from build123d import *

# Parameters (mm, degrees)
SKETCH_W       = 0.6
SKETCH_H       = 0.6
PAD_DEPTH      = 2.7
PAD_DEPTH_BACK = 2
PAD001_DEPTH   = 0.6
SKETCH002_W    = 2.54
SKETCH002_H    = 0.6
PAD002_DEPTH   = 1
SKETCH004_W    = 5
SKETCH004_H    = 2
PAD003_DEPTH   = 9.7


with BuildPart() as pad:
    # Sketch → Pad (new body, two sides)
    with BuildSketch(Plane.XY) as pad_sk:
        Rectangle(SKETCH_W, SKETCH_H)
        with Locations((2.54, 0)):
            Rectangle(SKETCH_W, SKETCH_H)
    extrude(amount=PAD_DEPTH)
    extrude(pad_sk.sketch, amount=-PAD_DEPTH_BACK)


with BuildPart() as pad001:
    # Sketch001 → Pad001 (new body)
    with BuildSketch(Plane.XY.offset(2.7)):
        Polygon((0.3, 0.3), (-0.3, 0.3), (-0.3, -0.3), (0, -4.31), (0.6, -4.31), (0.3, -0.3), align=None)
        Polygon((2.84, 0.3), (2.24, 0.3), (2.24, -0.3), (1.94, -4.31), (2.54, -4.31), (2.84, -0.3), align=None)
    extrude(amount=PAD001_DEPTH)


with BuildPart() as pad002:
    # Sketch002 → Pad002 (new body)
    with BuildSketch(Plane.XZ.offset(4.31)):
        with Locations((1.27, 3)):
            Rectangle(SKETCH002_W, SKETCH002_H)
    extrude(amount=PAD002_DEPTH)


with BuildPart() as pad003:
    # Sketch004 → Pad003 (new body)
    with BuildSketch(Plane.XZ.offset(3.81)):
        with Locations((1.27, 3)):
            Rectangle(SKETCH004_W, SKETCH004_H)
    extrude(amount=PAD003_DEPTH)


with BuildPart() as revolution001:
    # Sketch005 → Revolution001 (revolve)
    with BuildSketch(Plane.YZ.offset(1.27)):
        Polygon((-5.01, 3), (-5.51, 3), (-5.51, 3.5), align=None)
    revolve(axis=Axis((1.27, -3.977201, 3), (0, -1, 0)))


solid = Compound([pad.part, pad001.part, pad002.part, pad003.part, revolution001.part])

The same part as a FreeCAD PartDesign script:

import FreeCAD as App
import Part
import Sketcher


def add_polygon(sketch, points):
    """Adds a closed chain of lines whose ends are joined by coincident constraints."""
    first, n = sketch.GeometryCount, len(points)
    for a, b in zip(points, points[1:] + points[:1]):
        sketch.addGeometry(Part.LineSegment(App.Vector(*a, 0), App.Vector(*b, 0)), False)
    for i in range(n):
        sketch.addConstraint(Sketcher.Constraint("Coincident", first + i, 2, first + (i + 1) % n, 1))

doc = App.newDocument("Part")
body = doc.addObject("PartDesign::Body", "Body")
body.AllowCompound = True

sketch1 = body.newObject("Sketcher::SketchObject", "Sketch")
sketch1.AttachmentSupport = (doc.getObject("XY_Plane"), [""])
sketch1.MapMode = "FlatFace"
add_polygon(sketch1, [(-0.3, 0.3), (-0.3, -0.3), (0.3, -0.3), (0.3, 0.3)])
add_polygon(sketch1, [(2.24, 0.3), (2.24, -0.3), (2.84, -0.3), (2.84, 0.3)])
sketch1.addConstraint([
    Sketcher.Constraint("Vertical", 0),
    Sketcher.Constraint("Horizontal", 1),
    Sketcher.Constraint("Vertical", 2),
    Sketcher.Constraint("Horizontal", 3),
    Sketcher.Constraint("Vertical", 4),
    Sketcher.Constraint("Horizontal", 5),
    Sketcher.Constraint("Vertical", 6),
    Sketcher.Constraint("Horizontal", 7),
    Sketcher.Constraint("Symmetric", 0, 2, 2, 2, -1, 1),
    Sketcher.Constraint("Horizontal", 1, 2, 4, 2),
    Sketcher.Constraint("Horizontal", 3, 2, 6, 2),
    Sketcher.Constraint("Equal", 3, 5),
    Sketcher.Constraint("Equal", 7, 0),
    Sketcher.Constraint("DistanceX", 1, 1, 1, 2, 0.6),
    Sketcher.Constraint("DistanceX", -1, 1, 4, 2, 2.24),
])
pad1 = body.newObject("PartDesign::Pad", "Pad")
pad1.Profile = sketch1
pad1.Type = "TwoLengths"
pad1.Length = 2.7
pad1.Length2 = 2
body2 = doc.addObject("PartDesign::Body", "Body001")
body2.AllowCompound = True

sketch2 = body2.newObject("Sketcher::SketchObject", "Sketch001")
sketch2.AttachmentSupport = (doc.getObject("XY_Plane001"), [""])
sketch2.MapMode = "FlatFace"
sketch2.AttachmentOffset = App.Placement(App.Vector(0, 0, 2.7), App.Rotation())
add_polygon(sketch2, [(0.3, 0.3), (-0.3, 0.3), (-0.3, -0.3), (0, -4.31), (0.6, -4.31), (0.3, -0.3)])
add_polygon(sketch2, [(2.84, 0.3), (2.24, 0.3), (2.24, -0.3), (1.94, -4.31), (2.54, -4.31), (2.84, -0.3)])
sketch2.addConstraint([
    Sketcher.Constraint("Horizontal", 0),
    Sketcher.Constraint("Vertical", 1),
    Sketcher.Constraint("Horizontal", 3),
    Sketcher.Constraint("Vertical", 5),
    Sketcher.Constraint("Horizontal", 6),
    Sketcher.Constraint("Vertical", 7),
    Sketcher.Constraint("Horizontal", 9),
    Sketcher.Constraint("Vertical", 11),
    Sketcher.Constraint("Symmetric", 0, 2, 4, 2, -1, 1),
    Sketcher.Constraint("PointOnObject", 2, 2, -2),
    Sketcher.Constraint("Parallel", 2, 4),
    Sketcher.Constraint("Parallel", 8, 10),
    Sketcher.Constraint("Horizontal", 1, 2, 4, 2),
    Sketcher.Constraint("Horizontal", 5, 2, 6, 2),
    Sketcher.Constraint("Horizontal", 4, 2, 7, 2),
    Sketcher.Constraint("Horizontal", 3, 2, 8, 2),
    Sketcher.Constraint("Horizontal", 7, 2, 10, 2),
    Sketcher.Constraint("Equal", 3, 6),
    Sketcher.Constraint("Equal", 9, 1),
    Sketcher.Constraint("Equal", 4, 8),
    Sketcher.Constraint("DistanceX", 0, 2, 0, 1, 0.6),
    Sketcher.Constraint("DistanceY", 2, 2, -1, 1, 4.31),
    Sketcher.Constraint("DistanceX", -1, 1, 6, 2, 2.24),
])
pad2 = body2.newObject("PartDesign::Pad", "Pad001")
pad2.Profile = sketch2
pad2.Length = 0.6
body3 = doc.addObject("PartDesign::Body", "Body002")

sketch3 = body3.newObject("Sketcher::SketchObject", "Sketch002")
sketch3.AttachmentSupport = (doc.getObject("XZ_Plane002"), [""])
sketch3.MapMode = "FlatFace"
sketch3.AttachmentOffset = App.Placement(App.Vector(0, 0, 4.31), App.Rotation())
add_polygon(sketch3, [(0, 3.3), (0, 2.7), (2.54, 2.7), (2.54, 3.3)])
sketch3.addConstraint([
    Sketcher.Constraint("Vertical", 0),
    Sketcher.Constraint("Horizontal", 1),
    Sketcher.Constraint("Vertical", 2),
    Sketcher.Constraint("Horizontal", 3),
    Sketcher.Constraint("PointOnObject", 0, 2, -2),
    Sketcher.Constraint("DistanceY", 0, 2, 0, 1, 0.6),
    Sketcher.Constraint("DistanceX", 1, 1, 1, 2, 2.54),
    Sketcher.Constraint("DistanceY", -1, 1, 0, 2, 2.7),
])
pad3 = body3.newObject("PartDesign::Pad", "Pad002")
pad3.Profile = sketch3
pad3.Length = 1
body4 = doc.addObject("PartDesign::Body", "Body003")

sketch4 = body4.newObject("Sketcher::SketchObject", "Sketch003")
sketch4.AttachmentSupport = (doc.getObject("XZ_Plane003"), [""])
sketch4.MapMode = "FlatFace"
sketch4.AttachmentOffset = App.Placement(App.Vector(0, 0, 3.81), App.Rotation())
add_polygon(sketch4, [(-1.23, 4), (-1.23, 2), (3.77, 2), (3.77, 4)])
sketch4.addConstraint([
    Sketcher.Constraint("Vertical", 0),
    Sketcher.Constraint("Horizontal", 1),
    Sketcher.Constraint("Vertical", 2),
    Sketcher.Constraint("Horizontal", 3),
    Sketcher.Constraint("DistanceX", 1, 1, 1, 2, 5.0),
    Sketcher.Constraint("DistanceY", 0, 2, 0, 1, 2.0),
    Sketcher.Constraint("DistanceY", -1, 1, 0, 2, 2.0),
    Sketcher.Constraint("DistanceX", 0, 2, -1, 1, 1.23),
])
pad4 = body4.newObject("PartDesign::Pad", "Pad003")
pad4.Profile = sketch4
pad4.Length = 9.7
body5 = doc.addObject("PartDesign::Body", "Body004")

sketch5 = body5.newObject("Sketcher::SketchObject", "Sketch004")
sketch5.AttachmentSupport = (doc.getObject("YZ_Plane004"), [""])
sketch5.MapMode = "FlatFace"
sketch5.AttachmentOffset = App.Placement(App.Vector(0, 0, 1.27), App.Rotation())
add_polygon(sketch5, [(-5.51, 3), (-5.01, 3), (-5.51, 3.5)])
sketch5.addGeometry(Part.LineSegment(App.Vector(-5.01, 3, 0), App.Vector(-5.51, 3, 0)), True)
sketch5.addConstraint([
    Sketcher.Constraint("Horizontal", 0),
    Sketcher.Constraint("Vertical", 2),
    Sketcher.Constraint("Horizontal", 3),
    Sketcher.Constraint("Coincident", 3, 1, 0, 2),
    Sketcher.Constraint("Vertical", 1, 2, 3, 2),
    Sketcher.Constraint("Equal", 3, 2),
    Sketcher.Constraint("DistanceX", 0, 1, 0, 2, 0.5),
    Sketcher.Constraint("DistanceY", -1, 1, 0, 2, 3.0),
    Sketcher.Constraint("DistanceX", 0, 2, -1, 1, 5.01),
])
revolution = body5.newObject("PartDesign::Revolution", "Revolution")
revolution.Profile = sketch5
revolution.ReferenceAxis = (sketch5, ["Axis0"])
revolution.Angle = 360

doc.recompute()
